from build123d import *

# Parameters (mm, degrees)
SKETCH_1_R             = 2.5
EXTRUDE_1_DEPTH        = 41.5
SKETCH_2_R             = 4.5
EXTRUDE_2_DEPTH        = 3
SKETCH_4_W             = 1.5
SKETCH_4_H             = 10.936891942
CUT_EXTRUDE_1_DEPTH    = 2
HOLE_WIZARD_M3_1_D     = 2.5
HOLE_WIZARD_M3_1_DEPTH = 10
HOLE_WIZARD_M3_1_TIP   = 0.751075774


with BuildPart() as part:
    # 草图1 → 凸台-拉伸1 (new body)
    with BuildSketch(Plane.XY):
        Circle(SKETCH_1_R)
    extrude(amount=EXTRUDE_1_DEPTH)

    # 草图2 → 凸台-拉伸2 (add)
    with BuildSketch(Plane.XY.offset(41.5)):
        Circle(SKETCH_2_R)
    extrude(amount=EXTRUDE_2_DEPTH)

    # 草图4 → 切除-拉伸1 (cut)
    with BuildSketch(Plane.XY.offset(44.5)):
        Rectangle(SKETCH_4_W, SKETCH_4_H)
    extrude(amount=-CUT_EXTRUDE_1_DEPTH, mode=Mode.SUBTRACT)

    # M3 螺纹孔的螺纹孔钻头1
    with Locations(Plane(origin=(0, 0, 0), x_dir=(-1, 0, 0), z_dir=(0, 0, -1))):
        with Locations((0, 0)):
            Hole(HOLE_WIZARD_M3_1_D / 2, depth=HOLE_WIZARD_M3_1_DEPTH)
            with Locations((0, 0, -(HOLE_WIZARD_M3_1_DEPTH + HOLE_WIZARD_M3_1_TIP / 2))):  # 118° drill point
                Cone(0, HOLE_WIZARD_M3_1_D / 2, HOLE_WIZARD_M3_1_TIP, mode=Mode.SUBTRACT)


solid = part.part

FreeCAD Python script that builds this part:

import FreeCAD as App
import Part
import Sketcher


def add_polygon(sketch, points):
    """Adds a closed chain of lines whose ends are joined by coincident constraints."""
    first, n = sketch.GeometryCount, len(points)
    for a, b in zip(points, points[1:] + points[:1]):
        sketch.addGeometry(Part.LineSegment(App.Vector(*a, 0), App.Vector(*b, 0)), False)
    for i in range(n):
        sketch.addConstraint(Sketcher.Constraint("Coincident", first + i, 2, first + (i + 1) % n, 1))

doc = App.newDocument("Part")
body = doc.addObject("PartDesign::Body", "Body")

sketch1 = doc.addObject("Sketcher::SketchObject", "Sketch")
body.addObject(sketch1)
sketch1.AttachmentSupport = (doc.XY_Plane, [""])
sketch1.MapMode = "FlatFace"
sketch1.addGeometry(Part.Circle(App.Vector(0, 0, 0), App.Vector(0, 0, 1), 2.5), False)
sketch1.addConstraint(Sketcher.Constraint("Coincident", 0, 3, -1, 1))
sketch1.addConstraint(Sketcher.Constraint("Diameter", 0, 5.0))
pad1 = doc.addObject("PartDesign::Pad", "Pad")
body.addObject(pad1)
pad1.Profile = sketch1
pad1.Length = 41.5

sketch2 = doc.addObject("Sketcher::SketchObject", "Sketch001")
body.addObject(sketch2)
sketch2.AttachmentSupport = (doc.XY_Plane, [""])
sketch2.MapMode = "FlatFace"
sketch2.AttachmentOffset = App.Placement(App.Vector(0, 0, 41.5), App.Rotation())
sketch2.addGeometry(Part.Circle(App.Vector(0, 0, 0), App.Vector(0, 0, 1), 4.5), False)
sketch2.addConstraint(Sketcher.Constraint("Coincident", 0, 3, -1, 1))
sketch2.addConstraint(Sketcher.Constraint("Diameter", 0, 9.0))
pad2 = doc.addObject("PartDesign::Pad", "Pad001")
body.addObject(pad2)
pad2.Profile = sketch2
pad2.Length = 3

sketch3 = doc.addObject("Sketcher::SketchObject", "Sketch002")
body.addObject(sketch3)
sketch3.AttachmentSupport = (doc.XY_Plane, [""])
sketch3.MapMode = "FlatFace"
sketch3.AttachmentOffset = App.Placement(App.Vector(0, 0, 44.5), App.Rotation())
add_polygon(sketch3, [(-0.75, 5.468446), (-0.75, -5.468446), (0.75, -5.468446), (0.75, 5.468446)])
sketch3.addConstraint(Sketcher.Constraint("Vertical", 0))
sketch3.addConstraint(Sketcher.Constraint("Horizontal", 1))
sketch3.addConstraint(Sketcher.Constraint("Vertical", 2))
sketch3.addConstraint(Sketcher.Constraint("Horizontal", 3))
sketch3.addConstraint(Sketcher.Constraint("Symmetric", 0, 2, 2, 2, -1, 1))
sketch3.addConstraint(Sketcher.Constraint("DistanceX", 1, 1, 1, 2, 1.5))
sketch3.addConstraint(Sketcher.Constraint("DistanceY", 0, 2, 0, 1, 10.936892))
pocket1 = doc.addObject("PartDesign::Pocket", "Pocket")
body.addObject(pocket1)
pocket1.Profile = sketch3
pocket1.Length = 2

sketch4 = doc.addObject("Sketcher::SketchObject", "Sketch003")
body.addObject(sketch4)
sketch4.AttachmentSupport = (doc.XY_Plane, [""])
sketch4.MapMode = "FlatFace"
sketch4.addGeometry(Part.Circle(App.Vector(0, 0, 0), App.Vector(0, 0, 1), 1.25), False)
sketch4.addConstraint(Sketcher.Constraint("Coincident", 0, 3, -1, 1))
sketch4.addConstraint(Sketcher.Constraint("Diameter", 0, 2.5))
doc.recompute()
hole = doc.addObject("PartDesign::Hole", "Hole")
body.addObject(hole)
hole.Profile = sketch4
hole.ThreadType = "None"
hole.Diameter = 2.5
hole.DepthType = "Dimension"
hole.Depth = 10
hole.DrillPoint = "Angled"
hole.DrillPointAngle = 118
hole.Reversed = True

doc.recompute()
